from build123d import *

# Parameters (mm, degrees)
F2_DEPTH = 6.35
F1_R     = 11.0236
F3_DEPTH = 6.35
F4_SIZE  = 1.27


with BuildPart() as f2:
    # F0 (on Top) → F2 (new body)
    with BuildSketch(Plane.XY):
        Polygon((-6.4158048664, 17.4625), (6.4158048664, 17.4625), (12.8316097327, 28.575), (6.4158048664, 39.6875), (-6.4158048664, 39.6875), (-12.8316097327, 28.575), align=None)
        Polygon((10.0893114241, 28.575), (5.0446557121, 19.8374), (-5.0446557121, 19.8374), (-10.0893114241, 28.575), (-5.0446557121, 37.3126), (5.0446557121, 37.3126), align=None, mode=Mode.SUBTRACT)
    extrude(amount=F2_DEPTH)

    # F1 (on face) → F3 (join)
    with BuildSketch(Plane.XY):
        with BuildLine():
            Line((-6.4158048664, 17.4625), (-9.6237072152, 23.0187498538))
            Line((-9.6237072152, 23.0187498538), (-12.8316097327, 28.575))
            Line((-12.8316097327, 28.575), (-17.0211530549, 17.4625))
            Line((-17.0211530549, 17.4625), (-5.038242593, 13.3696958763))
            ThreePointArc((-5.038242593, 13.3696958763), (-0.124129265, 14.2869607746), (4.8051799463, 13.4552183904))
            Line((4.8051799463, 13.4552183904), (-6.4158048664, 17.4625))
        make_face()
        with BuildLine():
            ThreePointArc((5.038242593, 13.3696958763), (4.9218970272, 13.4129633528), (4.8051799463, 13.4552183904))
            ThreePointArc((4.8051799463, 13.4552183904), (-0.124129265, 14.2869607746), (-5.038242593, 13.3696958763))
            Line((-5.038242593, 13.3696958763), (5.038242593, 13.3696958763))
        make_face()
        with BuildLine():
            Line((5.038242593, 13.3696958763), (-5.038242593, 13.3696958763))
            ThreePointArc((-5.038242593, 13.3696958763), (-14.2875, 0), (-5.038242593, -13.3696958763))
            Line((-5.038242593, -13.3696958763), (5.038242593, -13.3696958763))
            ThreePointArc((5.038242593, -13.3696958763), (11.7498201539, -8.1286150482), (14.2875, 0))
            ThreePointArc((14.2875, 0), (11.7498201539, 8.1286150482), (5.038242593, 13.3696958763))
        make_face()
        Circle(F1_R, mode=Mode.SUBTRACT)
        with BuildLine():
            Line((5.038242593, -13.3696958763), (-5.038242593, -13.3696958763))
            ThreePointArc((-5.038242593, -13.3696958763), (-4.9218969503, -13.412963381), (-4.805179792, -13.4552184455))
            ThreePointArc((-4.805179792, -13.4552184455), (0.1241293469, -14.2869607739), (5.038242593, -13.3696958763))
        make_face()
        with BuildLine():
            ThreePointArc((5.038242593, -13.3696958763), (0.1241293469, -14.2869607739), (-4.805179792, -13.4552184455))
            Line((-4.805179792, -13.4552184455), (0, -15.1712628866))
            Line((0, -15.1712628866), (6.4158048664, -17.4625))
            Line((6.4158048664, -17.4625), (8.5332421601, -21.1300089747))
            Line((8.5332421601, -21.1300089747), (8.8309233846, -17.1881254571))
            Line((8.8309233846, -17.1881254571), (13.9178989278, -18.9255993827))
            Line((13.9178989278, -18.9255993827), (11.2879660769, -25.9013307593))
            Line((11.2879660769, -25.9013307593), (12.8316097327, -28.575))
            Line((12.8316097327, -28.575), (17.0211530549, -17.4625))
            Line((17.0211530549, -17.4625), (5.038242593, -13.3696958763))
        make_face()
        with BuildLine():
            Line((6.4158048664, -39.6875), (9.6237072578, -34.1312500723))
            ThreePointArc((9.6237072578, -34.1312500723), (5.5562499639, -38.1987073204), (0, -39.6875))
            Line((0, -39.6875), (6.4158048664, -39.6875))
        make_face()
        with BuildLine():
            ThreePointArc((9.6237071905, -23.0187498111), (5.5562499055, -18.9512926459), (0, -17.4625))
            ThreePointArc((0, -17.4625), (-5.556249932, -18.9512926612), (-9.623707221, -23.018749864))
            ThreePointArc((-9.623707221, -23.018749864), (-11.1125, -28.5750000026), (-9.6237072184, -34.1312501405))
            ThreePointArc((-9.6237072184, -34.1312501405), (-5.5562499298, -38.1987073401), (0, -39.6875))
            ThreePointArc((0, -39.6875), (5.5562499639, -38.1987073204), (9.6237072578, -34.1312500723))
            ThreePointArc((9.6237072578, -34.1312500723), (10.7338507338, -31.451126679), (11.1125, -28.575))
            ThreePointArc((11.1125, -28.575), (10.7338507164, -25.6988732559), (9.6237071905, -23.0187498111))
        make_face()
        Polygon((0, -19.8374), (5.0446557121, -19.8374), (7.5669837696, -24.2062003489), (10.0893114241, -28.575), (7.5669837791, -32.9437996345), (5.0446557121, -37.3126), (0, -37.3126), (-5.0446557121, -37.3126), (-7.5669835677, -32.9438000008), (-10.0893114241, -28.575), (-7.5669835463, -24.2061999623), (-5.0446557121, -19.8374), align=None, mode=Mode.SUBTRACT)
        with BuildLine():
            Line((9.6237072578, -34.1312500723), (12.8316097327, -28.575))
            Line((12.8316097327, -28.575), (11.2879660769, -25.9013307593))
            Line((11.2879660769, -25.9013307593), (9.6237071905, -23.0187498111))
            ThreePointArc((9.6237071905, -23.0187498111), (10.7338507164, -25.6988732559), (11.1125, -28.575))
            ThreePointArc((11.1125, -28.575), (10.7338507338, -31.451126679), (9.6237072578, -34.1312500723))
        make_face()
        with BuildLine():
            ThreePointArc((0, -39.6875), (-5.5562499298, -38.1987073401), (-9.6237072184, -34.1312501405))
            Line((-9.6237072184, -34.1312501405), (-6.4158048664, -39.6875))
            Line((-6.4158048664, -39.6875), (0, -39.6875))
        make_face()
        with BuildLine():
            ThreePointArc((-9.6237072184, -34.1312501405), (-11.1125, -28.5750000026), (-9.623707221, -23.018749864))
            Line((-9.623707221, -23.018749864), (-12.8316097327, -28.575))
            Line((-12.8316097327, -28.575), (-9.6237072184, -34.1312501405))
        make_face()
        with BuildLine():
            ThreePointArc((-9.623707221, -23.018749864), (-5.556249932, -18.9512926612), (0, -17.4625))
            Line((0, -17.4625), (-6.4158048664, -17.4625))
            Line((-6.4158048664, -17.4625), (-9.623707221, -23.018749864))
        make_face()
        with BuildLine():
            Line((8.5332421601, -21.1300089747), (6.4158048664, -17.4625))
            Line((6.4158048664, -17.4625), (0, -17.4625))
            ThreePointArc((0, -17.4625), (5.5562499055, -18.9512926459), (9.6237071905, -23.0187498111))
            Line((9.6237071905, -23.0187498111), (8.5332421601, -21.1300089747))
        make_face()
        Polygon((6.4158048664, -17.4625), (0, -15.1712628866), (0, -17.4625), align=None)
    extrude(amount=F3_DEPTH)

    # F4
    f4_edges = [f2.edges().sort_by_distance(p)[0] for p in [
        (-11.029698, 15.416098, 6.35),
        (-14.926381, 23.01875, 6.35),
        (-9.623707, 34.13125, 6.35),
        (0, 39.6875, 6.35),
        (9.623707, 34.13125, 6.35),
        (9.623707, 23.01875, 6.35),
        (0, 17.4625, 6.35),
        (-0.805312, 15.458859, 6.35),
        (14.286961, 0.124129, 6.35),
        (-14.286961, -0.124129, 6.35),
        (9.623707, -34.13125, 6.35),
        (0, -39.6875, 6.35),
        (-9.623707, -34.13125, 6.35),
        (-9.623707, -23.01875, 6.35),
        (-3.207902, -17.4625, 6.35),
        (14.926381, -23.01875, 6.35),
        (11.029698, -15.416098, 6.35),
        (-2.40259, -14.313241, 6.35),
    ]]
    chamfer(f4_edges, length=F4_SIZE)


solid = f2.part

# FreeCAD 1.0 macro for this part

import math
import FreeCAD as App
import Part
import Sketcher
Q = App.Units.Quantity


def edges_at(feature, points):
    """Names of the edges that pass closest to the given points."""
    edges = feature.Shape.Edges
    near = lambda p: min(range(len(edges)), key=lambda i: edges[i].distToShape(Part.Vertex(*p))[0])
    return sorted({f"Edge{near(p) + 1}" for p in points})


def add_polygon(sketch, points):
    """Adds a closed chain of lines whose ends are joined by coincident constraints."""
    first, n = sketch.GeometryCount, len(points)
    for a, b in zip(points, points[1:] + points[:1]):
        sketch.addGeometry(Part.LineSegment(App.Vector(*a, 0), App.Vector(*b, 0)), False)
    for i in range(n):
        sketch.addConstraint(Sketcher.Constraint("Coincident", first + i, 2, first + (i + 1) % n, 1))

doc = App.newDocument("Part")
params = doc.addObject("Spreadsheet::Sheet", "Params")
for row, (alias, value) in enumerate([
    ("pad1_length", "0.25 in"),
    ("sketch2_diameter", "0.868 in"),
    ("sketch2_radius", "0.5625 in"),
    ("pad2_length", "0.25 in"),
    ("chamfer_size", "0.05 in"),
], start=1):
    params.set(f"A{row}", alias)
    params.set(f"B{row}", "=" + value)
    params.setAlias(f"B{row}", alias)

body = doc.addObject("PartDesign::Body", "Body")

sketch1 = doc.addObject("Sketcher::SketchObject", "Sketch")
body.addObject(sketch1)
sketch1.AttachmentSupport = (doc.XY_Plane, [""])
sketch1.MapMode = "FlatFace"
add_polygon(sketch1, [(-6, 17), (6, 17), (13, 29), (6, 40), (-6, 40), (-13, 29)])
add_polygon(sketch1, [(5, 37), (10, 29), (5, 20), (-5, 20), (-10, 29), (-5, 37)])
sketch1.addConstraint([
    Sketcher.Constraint("Horizontal", 0),
    Sketcher.Constraint("Horizontal", 3),
    Sketcher.Constraint("Horizontal", 8),
    Sketcher.Constraint("Horizontal", 11),
    Sketcher.Constraint("Symmetric", 1, 2, 4, 2, -2),
    Sketcher.Constraint("Symmetric", 6, 2, 9, 2, -2),
    Sketcher.Constraint("Parallel", 1, 4),
    Sketcher.Constraint("Parallel", 2, 5),
    Sketcher.Constraint("Parallel", 5, 6),
    Sketcher.Constraint("Parallel", 4, 7),
    Sketcher.Constraint("Parallel", 6, 9),
    Sketcher.Constraint("Parallel", 7, 10),
    Sketcher.Constraint("Horizontal", 4, 2, 6, 2),
    Sketcher.Constraint("Vertical", 0, 2, 2, 2),
    Sketcher.Constraint("Vertical", 3, 2, 5, 2),
    Sketcher.Constraint("Vertical", 8, 2, 10, 2),
    Sketcher.Constraint("Angle", 1, Q("60 deg")),
    Sketcher.Constraint("DistanceY", -1, 1, 0, 2, Q("0.6875 in")),
    Sketcher.Constraint("DistanceY", -1, 1, 1, 2, Q("1.125 in")),
    Sketcher.Constraint("DistanceY", -1, 1, 7, 2, Q("0.781 in")),
    Sketcher.Constraint("DistanceX", 0, 1, 0, 2, 12.83161),
    Sketcher.Constraint("DistanceX", 8, 2, 8, 1, 10.089311),
])
pad1 = doc.addObject("PartDesign::Pad", "Pad")
body.addObject(pad1)
pad1.Profile = sketch1
pad1.setExpression("Length", "Params.pad1_length")

sketch2 = doc.addObject("Sketcher::SketchObject", "Sketch001")
body.addObject(sketch2)
sketch2.AttachmentSupport = (doc.XY_Plane, [""])
sketch2.MapMode = "FlatFace"
sketch2.addGeometry(Part.LineSegment(App.Vector(-6.42, 17.46, 0), App.Vector(-9.62, 23.02, 0)), False)
sketch2.addGeometry(Part.LineSegment(App.Vector(-9.62, 23.02, 0), App.Vector(-12.83, 28.57, 0)), False)
sketch2.addGeometry(Part.LineSegment(App.Vector(-12.83, 28.57, 0), App.Vector(-17.02, 17.46, 0)), False)
sketch2.addGeometry(Part.LineSegment(App.Vector(-17.02, 17.46, 0), App.Vector(-5.04, 13.37, 0)), False)
sketch2.addGeometry(Part.ArcOfCircle(Part.Circle(App.Vector(0, 0, 0), App.Vector(0, 0, 1), 14.29), math.radians(111), math.radians(249)), False)
sketch2.addGeometry(Part.ArcOfCircle(Part.Circle(App.Vector(0, 0, 0), App.Vector(0, 0, 1), 14.29), math.radians(-110.65), math.radians(-109.65)), False)
sketch2.addGeometry(Part.LineSegment(App.Vector(-4.81, -13.46, 0), App.Vector(0, -15.17, 0)), False)
sketch2.addGeometry(Part.LineSegment(App.Vector(0, -15.17, 0), App.Vector(0, -17.46, 0)), False)
sketch2.addGeometry(Part.LineSegment(App.Vector(0, -17.46, 0), App.Vector(-6.42, -17.46, 0)), False)
sketch2.addGeometry(Part.LineSegment(App.Vector(-6.42, -17.46, 0), App.Vector(-9.62, -23.02, 0)), False)
sketch2.addGeometry(Part.LineSegment(App.Vector(-9.62, -23.02, 0), App.Vector(-12.83, -28.57, 0)), False)
sketch2.addGeometry(Part.LineSegment(App.Vector(-12.83, -28.57, 0), App.Vector(-9.62, -34.13, 0)), False)
sketch2.addGeometry(Part.LineSegment(App.Vector(-9.62, -34.13, 0), App.Vector(-6.42, -39.69, 0)), False)
sketch2.addGeometry(Part.LineSegment(App.Vector(-6.42, -39.69, 0), App.Vector(6.42, -39.69, 0)), False)
sketch2.addGeometry(Part.LineSegment(App.Vector(6.42, -39.69, 0), App.Vector(9.62, -34.13, 0)), False)
sketch2.addGeometry(Part.LineSegment(App.Vector(9.62, -34.13, 0), App.Vector(12.83, -28.57, 0)), False)
sketch2.addGeometry(Part.LineSegment(App.Vector(12.83, -28.57, 0), App.Vector(17.02, -17.46, 0)), False)
sketch2.addGeometry(Part.LineSegment(App.Vector(17.02, -17.46, 0), App.Vector(5.04, -13.37, 0)), False)
sketch2.addGeometry(Part.ArcOfCircle(Part.Circle(App.Vector(0, 0, 0), App.Vector(0, 0, 1), 14.29), math.radians(-69), math.radians(0)), False)
sketch2.addGeometry(Part.ArcOfCircle(Part.Circle(App.Vector(0, 0, 0), App.Vector(0, 0, 1), 14.29), math.radians(0), math.radians(69)), False)
sketch2.addGeometry(Part.ArcOfCircle(Part.Circle(App.Vector(0, 0, 0), App.Vector(0, 0, 1), 14.29), math.radians(69.35), math.radians(70.35)), False)
sketch2.addGeometry(Part.LineSegment(App.Vector(4.81, 13.46, 0), App.Vector(-6.42, 17.46, 0)), False)
add_polygon(sketch2, [(8.53, -21.13), (8.83, -17.19), (13.92, -18.93), (11.29, -25.9), (9.62, -23.02)])
sketch2.addGeometry(Part.Circle(App.Vector(0, 0, 0), App.Vector(0, 0, 1), 11.02), False)
add_polygon(sketch2, [(-7.57, -24.21), (-5.04, -19.84), (5.04, -19.84), (7.57, -24.21), (10.09, -28.57), (7.57, -32.94), (5.04, -37.31), (-5.04, -37.31), (-7.57, -32.94), (-10.09, -28.57)])
sketch2.addConstraint([
    Sketcher.Constraint("Coincident", 0, 2, 1, 1),
    Sketcher.Constraint("Coincident", 1, 2, 2, 1),
    Sketcher.Constraint("Coincident", 2, 2, 3, 1),
    Sketcher.Constraint("Coincident", 3, 2, 4, 1),
    Sketcher.Constraint("Tangent", 4, 2, 5, 1),
    Sketcher.Constraint("Tangent", 5, 2, 6, 1),
    Sketcher.Constraint("Coincident", 6, 2, 7, 1),
    Sketcher.Constraint("Coincident", 7, 2, 8, 1),
    Sketcher.Constraint("Coincident", 8, 2, 9, 1),
    Sketcher.Constraint("Coincident", 9, 2, 10, 1),
    Sketcher.Constraint("Coincident", 10, 2, 11, 1),
    Sketcher.Constraint("Coincident", 11, 2, 12, 1),
    Sketcher.Constraint("Coincident", 12, 2, 13, 1),
    Sketcher.Constraint("Coincident", 13, 2, 14, 1),
    Sketcher.Constraint("Coincident", 14, 2, 15, 1),
    Sketcher.Constraint("Coincident", 15, 2, 16, 1),
    Sketcher.Constraint("Coincident", 16, 2, 17, 1),
    Sketcher.Constraint("Coincident", 17, 2, 18, 1),
    Sketcher.Constraint("Tangent", 18, 2, 19, 1),
    Sketcher.Constraint("Tangent", 19, 2, 20, 1),
    Sketcher.Constraint("Tangent", 20, 2, 21, 1),
    Sketcher.Constraint("Coincident", 21, 2, 0, 1),
    Sketcher.Constraint("Vertical", 7),
    Sketcher.Constraint("Horizontal", 8),
    Sketcher.Constraint("Horizontal", 13),
    Sketcher.Constraint("Horizontal", 29),
    Sketcher.Constraint("Horizontal", 34),
    Sketcher.Constraint("Coincident", 4, 3, -1, 1),
    Sketcher.Constraint("Coincident", 18, 3, -1, 1),
    Sketcher.Constraint("Coincident", 20, 3, -1, 1),
    Sketcher.Constraint("Coincident", 27, 3, -1, 1),
    Sketcher.Constraint("Equal", 4, 5),
    Sketcher.Constraint("Equal", 5, 18),
    Sketcher.Constraint("Symmetric", 1, 2, 15, 2, -1, 1),
    Sketcher.Constraint("Symmetric", 2, 2, 16, 2, -1, 1),
    Sketcher.Constraint("Symmetric", 0, 2, 25, 2, -1, 1),
    Sketcher.Constraint("Symmetric", 11, 2, 14, 2, -2),
    Sketcher.Constraint("Symmetric", 10, 2, 15, 2, -2),
    Sketcher.Constraint("Symmetric", 9, 2, 25, 2, -2),
    Sketcher.Constraint("Symmetric", 32, 2, 35, 2, -2),
    Sketcher.Constraint("Symmetric", 31, 2, 36, 2, -2),
    Sketcher.Constraint("Symmetric", 30, 2, 37, 2, -2),
    Sketcher.Constraint("Symmetric", 8, 2, 21, 2, -1),
    Sketcher.Constraint("PointOnObject", 6, 2, -2),
    Sketcher.Constraint("PointOnObject", 18, 2, -1),
    Sketcher.Constraint("Parallel", 0, 1),
    Sketcher.Constraint("Parallel", 1, 11),
    Sketcher.Constraint("Parallel", 11, 12),
    Sketcher.Constraint("Parallel", 10, 14),
    Sketcher.Constraint("Parallel", 3, 17),
    Sketcher.Constraint("Parallel", 6, 21),
    Sketcher.Constraint("Parallel", 17, 23),
    Sketcher.Constraint("Parallel", 16, 24),
    Sketcher.Constraint("Parallel", 12, 25),
    Sketcher.Constraint("Parallel", 25, 26),
    Sketcher.Constraint("Parallel", 15, 28),
    Sketcher.Constraint("Parallel", 26, 30),
    Sketcher.Constraint("Parallel", 30, 31),
    Sketcher.Constraint("Parallel", 28, 32),
    Sketcher.Constraint("Parallel", 32, 33),
    Sketcher.Constraint("Parallel", 31, 35),
    Sketcher.Constraint("Horizontal", 8, 2, 16, 2),
    Sketcher.Constraint("Horizontal", 4, 2, 17, 2),
    Sketcher.Constraint("Horizontal", 3, 2, 19, 2),
    Sketcher.Constraint("Horizontal", 15, 2, 31, 2),
    Sketcher.Constraint("Vertical", 9, 2, 11, 2),
    Sketcher.Constraint("Vertical", 8, 2, 12, 2),
    Sketcher.Constraint("Vertical", 30, 2, 32, 2),
    Sketcher.Constraint("Vertical", 29, 2, 33, 2),
    Sketcher.Constraint("Equal", 0, 1),
    Sketcher.Constraint("Equal", 30, 31),
    Sketcher.Constraint("Diameter", 27, Q("0.868 in")),
    Sketcher.Constraint("Angle", 0, Q("120 deg")),
    Sketcher.Constraint("Radius", 4, Q("0.5625 in")),
    Sketcher.Constraint("DistanceY", -1, 1, 0, 2, Q("0.90625 in")),
    Sketcher.Constraint("DistanceY", -1, 1, 1, 2, Q("1.125 in")),
    Sketcher.Constraint("DistanceY", 28, 2, -1, 1, Q("0.781 in")),
    Sketcher.Constraint("DistanceX", 13, 1, 13, 2, 12.83161),
    Sketcher.Constraint("DistanceX", 29, 1, 29, 2, 10.089311),
    Sketcher.Constraint("DistanceX", -1, 1, 23, 2, 13.917899),
    Sketcher.Constraint("DistanceY", 23, 2, -1, 1, 18.925599),
    Sketcher.Constraint("DistanceX", 17, 2, 26, 2, 3.495),
    Sketcher.Constraint("Distance", 3, 12.66259),
    Sketcher.Constraint("Distance", 26, 2.18093),
    Sketcher.Constraint("DistanceX", 17, 2, 22, 2, 3.792681),
])
sketch2.setExpression("Constraints[86]", "Params.sketch2_diameter")
sketch2.setExpression("Constraints[88]", "Params.sketch2_radius")
pad2 = doc.addObject("PartDesign::Pad", "Pad001")
body.addObject(pad2)
pad2.Profile = sketch2
pad2.setExpression("Length", "Params.pad2_length")
doc.recompute()

chamfer = doc.addObject("PartDesign::Chamfer", "Chamfer")
body.addObject(chamfer)
chamfer.Base = (pad2, edges_at(pad2, [
    (-11.03, 15.416, 6.35),
    (-14.926, 23.019, 6.35),
    (-9.624, 34.131, 6.35),
    (0, 39.688, 6.35),
    (9.624, 34.131, 6.35),
    (9.624, 23.019, 6.35),
    (0, 17.462, 6.35),
    (-0.805, 15.459, 6.35),
    (11.75, 8.129, 6.35),
    (-14.287, 0, 6.35),
    (8.02, -36.909, 6.35),
    (0, -39.688, 6.35),
    (-11.228, -31.353, 6.35),
    (-11.228, -25.797, 6.35),
    (-3.208, -17.462, 6.35),
    (14.926, -23.019, 6.35),
    (11.03, -15.416, 6.35),
    (-2.403, -14.313, 6.35),
]))
chamfer.setExpression("Size", "Params.chamfer_size")

doc.recompute()
